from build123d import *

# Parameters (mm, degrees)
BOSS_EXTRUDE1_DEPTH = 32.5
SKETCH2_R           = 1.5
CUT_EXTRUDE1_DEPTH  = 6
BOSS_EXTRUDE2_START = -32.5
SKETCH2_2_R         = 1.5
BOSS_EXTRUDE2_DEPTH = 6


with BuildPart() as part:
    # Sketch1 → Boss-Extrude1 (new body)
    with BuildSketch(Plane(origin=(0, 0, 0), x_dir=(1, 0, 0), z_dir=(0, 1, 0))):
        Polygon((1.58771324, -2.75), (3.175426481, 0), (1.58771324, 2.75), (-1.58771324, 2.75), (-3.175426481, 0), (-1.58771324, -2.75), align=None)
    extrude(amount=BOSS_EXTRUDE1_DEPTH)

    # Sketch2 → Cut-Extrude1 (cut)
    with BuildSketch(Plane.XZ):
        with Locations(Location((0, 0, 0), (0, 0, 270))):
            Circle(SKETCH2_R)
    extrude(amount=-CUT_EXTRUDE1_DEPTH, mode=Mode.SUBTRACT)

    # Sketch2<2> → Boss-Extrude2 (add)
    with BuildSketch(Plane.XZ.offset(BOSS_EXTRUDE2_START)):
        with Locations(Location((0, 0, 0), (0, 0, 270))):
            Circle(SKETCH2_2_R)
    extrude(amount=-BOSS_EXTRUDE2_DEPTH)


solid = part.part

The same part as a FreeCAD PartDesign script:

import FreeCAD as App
import Part
import Sketcher
from FreeCAD import Vector
Q = App.Units.Quantity

doc = App.newDocument("Part")
body = doc.addObject("PartDesign::Body", "Body")

# Sketch on XZ plane
sketch1 = body.newObject("Sketcher::SketchObject", "Sketch")
sketch1.AttachmentSupport = (doc.getObject("XZ_Plane"), [""])
sketch1.MapMode = "FlatFace"
sketch1.addGeometry(Part.LineSegment(Vector(1.6, 2.8, 0), Vector(3.2, 0, 0)), False)
sketch1.addGeometry(Part.LineSegment(Vector(3.2, 0, 0), Vector(1.6, -2.8, 0)), False)
sketch1.addGeometry(Part.LineSegment(Vector(1.6, -2.8, 0), Vector(-1.6, -2.8, 0)), False)
sketch1.addGeometry(Part.LineSegment(Vector(-1.6, -2.8, 0), Vector(-3.2, 0, 0)), False)
sketch1.addGeometry(Part.LineSegment(Vector(-3.2, 0, 0), Vector(-1.6, 2.8, 0)), False)
sketch1.addGeometry(Part.LineSegment(Vector(-1.6, 2.8, 0), Vector(1.6, 2.8, 0)), False)
sketch1.addConstraint(Sketcher.Constraint("Coincident", 0, 2, 1, 1))
sketch1.addConstraint(Sketcher.Constraint("Coincident", 1, 2, 2, 1))
sketch1.addConstraint(Sketcher.Constraint("Coincident", 2, 2, 3, 1))
sketch1.addConstraint(Sketcher.Constraint("Coincident", 3, 2, 4, 1))
sketch1.addConstraint(Sketcher.Constraint("Coincident", 4, 2, 5, 1))
sketch1.addConstraint(Sketcher.Constraint("Coincident", 5, 2, 0, 1))
sketch1.addConstraint(Sketcher.Constraint("Horizontal", 2))
sketch1.addConstraint(Sketcher.Constraint("Horizontal", 5))
sketch1.addConstraint(Sketcher.Constraint("Symmetric", 0, 2, 3, 2, -1, 1))
sketch1.addConstraint(Sketcher.Constraint("Symmetric", 1, 2, 4, 2, -1, 1))
sketch1.addConstraint(Sketcher.Constraint("PointOnObject", 0, 2, -1))
sketch1.addConstraint(Sketcher.Constraint("Parallel", 0, 3))
sketch1.addConstraint(Sketcher.Constraint("Vertical", 2, 2, 4, 2))
sketch1.addConstraint(Sketcher.Constraint("Angle", 0, Q("-60 deg")))
sketch1.addConstraint(Sketcher.Constraint("DistanceY", 2, 2, 4, 2, 5.5))
sketch1.addConstraint(Sketcher.Constraint("DistanceX", 2, 2, 2, 1, 3.175426))
pad1 = body.newObject("PartDesign::Pad", "Pad")
pad1.Profile = sketch1
pad1.Length = 32.5
pad1.Reversed = True

# Sketch on XZ plane
sketch2 = body.newObject("Sketcher::SketchObject", "Sketch001")
sketch2.AttachmentSupport = (doc.getObject("XZ_Plane"), [""])
sketch2.MapMode = "FlatFace"
sketch2.addGeometry(Part.Circle(Vector(0, 0, 0), Vector(0, 0, 1), 1.5), False)
sketch2.addConstraint(Sketcher.Constraint("Coincident", 0, 3, -1, 1))
sketch2.addConstraint(Sketcher.Constraint("Diameter", 0, 3.0))
pocket1 = body.newObject("PartDesign::Pocket", "Pocket")
pocket1.Profile = sketch2
pocket1.Length = 6

# Sketch on XZ plane
sketch3 = body.newObject("Sketcher::SketchObject", "Sketch002")
sketch3.AttachmentSupport = (doc.getObject("XZ_Plane"), [""])
sketch3.MapMode = "FlatFace"
sketch3.AttachmentOffset = App.Placement(Vector(0, 0, -32.5), App.Rotation())
sketch3.addGeometry(Part.Circle(Vector(0, 0, 0), Vector(0, 0, 1), 1.5), False)
sketch3.addConstraint(Sketcher.Constraint("Coincident", 0, 3, -1, 1))
sketch3.addConstraint(Sketcher.Constraint("Diameter", 0, 3.0))
pad2 = body.newObject("PartDesign::Pad", "Pad001")
pad2.Profile = sketch3
pad2.Length = 6
pad2.Reversed = True

doc.recompute()
